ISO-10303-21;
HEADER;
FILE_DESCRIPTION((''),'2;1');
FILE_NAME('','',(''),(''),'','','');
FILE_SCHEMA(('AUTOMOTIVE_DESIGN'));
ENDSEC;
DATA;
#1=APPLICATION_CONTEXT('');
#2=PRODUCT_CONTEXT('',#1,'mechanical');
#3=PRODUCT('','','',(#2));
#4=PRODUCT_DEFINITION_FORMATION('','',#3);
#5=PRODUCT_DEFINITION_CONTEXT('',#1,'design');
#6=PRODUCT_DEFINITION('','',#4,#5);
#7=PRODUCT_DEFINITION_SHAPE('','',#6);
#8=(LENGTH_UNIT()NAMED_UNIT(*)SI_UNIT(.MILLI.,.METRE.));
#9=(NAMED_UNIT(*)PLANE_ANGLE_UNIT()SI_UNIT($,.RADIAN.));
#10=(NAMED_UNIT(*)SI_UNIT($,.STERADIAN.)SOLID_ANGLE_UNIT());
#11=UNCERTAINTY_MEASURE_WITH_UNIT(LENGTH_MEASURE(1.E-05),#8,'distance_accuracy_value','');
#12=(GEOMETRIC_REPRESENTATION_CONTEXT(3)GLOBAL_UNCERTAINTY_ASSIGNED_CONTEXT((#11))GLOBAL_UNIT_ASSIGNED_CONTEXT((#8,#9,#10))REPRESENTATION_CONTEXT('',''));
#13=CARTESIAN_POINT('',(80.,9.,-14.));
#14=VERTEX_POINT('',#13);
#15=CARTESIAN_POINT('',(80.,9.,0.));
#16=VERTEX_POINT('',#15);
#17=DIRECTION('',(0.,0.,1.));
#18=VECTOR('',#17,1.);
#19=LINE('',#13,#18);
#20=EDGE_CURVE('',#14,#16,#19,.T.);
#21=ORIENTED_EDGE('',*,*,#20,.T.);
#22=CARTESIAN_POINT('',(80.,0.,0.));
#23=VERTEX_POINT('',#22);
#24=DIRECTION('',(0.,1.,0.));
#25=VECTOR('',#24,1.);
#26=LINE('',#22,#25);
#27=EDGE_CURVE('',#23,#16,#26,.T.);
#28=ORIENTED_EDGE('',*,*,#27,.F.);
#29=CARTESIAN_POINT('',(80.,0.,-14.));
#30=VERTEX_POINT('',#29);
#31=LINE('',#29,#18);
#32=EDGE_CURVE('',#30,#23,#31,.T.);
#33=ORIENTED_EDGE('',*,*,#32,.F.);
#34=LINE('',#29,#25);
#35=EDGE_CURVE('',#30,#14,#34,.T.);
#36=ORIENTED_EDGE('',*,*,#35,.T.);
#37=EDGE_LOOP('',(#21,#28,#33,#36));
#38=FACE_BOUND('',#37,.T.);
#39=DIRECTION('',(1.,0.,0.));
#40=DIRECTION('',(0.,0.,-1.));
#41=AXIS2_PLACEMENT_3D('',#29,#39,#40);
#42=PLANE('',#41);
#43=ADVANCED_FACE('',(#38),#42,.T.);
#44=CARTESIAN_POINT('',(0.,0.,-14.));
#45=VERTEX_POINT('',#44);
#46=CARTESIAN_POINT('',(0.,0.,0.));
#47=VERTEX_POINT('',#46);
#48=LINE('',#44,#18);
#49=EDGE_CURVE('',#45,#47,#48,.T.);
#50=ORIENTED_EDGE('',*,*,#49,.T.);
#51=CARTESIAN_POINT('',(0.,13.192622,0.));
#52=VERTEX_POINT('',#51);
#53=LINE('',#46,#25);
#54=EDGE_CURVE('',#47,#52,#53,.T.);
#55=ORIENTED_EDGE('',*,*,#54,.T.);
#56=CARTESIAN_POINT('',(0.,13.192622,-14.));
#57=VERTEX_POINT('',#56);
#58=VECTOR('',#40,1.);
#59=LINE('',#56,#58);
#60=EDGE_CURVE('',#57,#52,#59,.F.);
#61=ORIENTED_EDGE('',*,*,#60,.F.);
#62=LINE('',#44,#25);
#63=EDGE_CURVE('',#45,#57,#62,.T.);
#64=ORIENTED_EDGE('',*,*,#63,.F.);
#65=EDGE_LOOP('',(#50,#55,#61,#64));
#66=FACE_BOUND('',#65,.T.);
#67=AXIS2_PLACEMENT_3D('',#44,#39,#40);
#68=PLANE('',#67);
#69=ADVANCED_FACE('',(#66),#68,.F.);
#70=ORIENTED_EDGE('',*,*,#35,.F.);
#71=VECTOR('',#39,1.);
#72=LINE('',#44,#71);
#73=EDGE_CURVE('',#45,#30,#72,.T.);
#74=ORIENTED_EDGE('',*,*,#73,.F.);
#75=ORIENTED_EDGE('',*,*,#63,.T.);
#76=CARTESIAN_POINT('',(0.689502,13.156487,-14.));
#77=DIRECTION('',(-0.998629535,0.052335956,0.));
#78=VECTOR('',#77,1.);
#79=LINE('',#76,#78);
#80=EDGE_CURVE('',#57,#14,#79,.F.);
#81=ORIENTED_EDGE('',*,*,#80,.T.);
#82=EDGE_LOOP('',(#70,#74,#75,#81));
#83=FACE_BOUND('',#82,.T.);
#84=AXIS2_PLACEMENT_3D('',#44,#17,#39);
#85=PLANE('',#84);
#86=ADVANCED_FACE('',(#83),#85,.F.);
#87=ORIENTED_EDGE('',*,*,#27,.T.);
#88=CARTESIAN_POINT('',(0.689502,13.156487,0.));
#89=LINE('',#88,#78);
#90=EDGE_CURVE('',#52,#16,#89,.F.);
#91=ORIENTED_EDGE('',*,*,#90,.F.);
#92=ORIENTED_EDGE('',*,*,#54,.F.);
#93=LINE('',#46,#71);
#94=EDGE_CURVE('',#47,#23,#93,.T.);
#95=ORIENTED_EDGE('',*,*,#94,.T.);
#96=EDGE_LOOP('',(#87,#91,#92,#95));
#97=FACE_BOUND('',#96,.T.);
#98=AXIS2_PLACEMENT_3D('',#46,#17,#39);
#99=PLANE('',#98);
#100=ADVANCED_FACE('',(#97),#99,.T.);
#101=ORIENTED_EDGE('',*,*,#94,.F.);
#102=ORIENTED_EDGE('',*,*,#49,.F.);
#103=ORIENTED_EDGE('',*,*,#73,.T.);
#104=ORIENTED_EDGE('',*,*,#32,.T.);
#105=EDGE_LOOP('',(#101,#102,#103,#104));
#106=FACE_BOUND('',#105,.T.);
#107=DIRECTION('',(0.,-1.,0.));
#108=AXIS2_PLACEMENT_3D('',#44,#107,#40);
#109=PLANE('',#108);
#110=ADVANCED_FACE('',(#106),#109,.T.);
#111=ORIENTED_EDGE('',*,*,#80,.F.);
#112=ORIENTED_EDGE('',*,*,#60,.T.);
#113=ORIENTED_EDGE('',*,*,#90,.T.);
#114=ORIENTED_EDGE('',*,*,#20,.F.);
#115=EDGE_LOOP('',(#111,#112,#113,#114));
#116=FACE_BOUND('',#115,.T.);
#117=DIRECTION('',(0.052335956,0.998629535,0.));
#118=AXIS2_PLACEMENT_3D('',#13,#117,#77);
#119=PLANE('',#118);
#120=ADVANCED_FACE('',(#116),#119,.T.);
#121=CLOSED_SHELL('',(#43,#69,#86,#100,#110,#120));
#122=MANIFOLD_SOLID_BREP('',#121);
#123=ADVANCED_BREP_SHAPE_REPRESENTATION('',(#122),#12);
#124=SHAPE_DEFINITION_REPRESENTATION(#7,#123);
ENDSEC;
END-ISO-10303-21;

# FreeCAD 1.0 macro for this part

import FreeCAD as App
import Part
import Sketcher

V = App.Vector
Q = App.Units.Quantity


def faces_at(feature, points):
    """Names of the faces that lie closest to the given points."""
    faces = feature.Shape.Faces
    near = lambda p: min(range(len(faces)), key=lambda i: faces[i].distToShape(Part.Vertex(*p))[0])
    return sorted({f"Face{near(p) + 1}" for p in points})


def add_polygon(sketch, points):
    """Adds a closed chain of lines whose ends are joined by coincident constraints."""
    first, n = sketch.GeometryCount, len(points)
    for a, b in zip(points, points[1:] + points[:1]):
        sketch.addGeometry(Part.LineSegment(App.Vector(*a, 0), App.Vector(*b, 0)), False)
    for i in range(n):
        sketch.addConstraint(Sketcher.Constraint("Coincident", first + i, 2, first + (i + 1) % n, 1))

doc = App.newDocument("Part")
body = doc.addObject("PartDesign::Body", "Body")

# Sketch on XY plane
sketch1 = doc.addObject("Sketcher::SketchObject", "Sketch")
body.addObject(sketch1)
sketch1.AttachmentSupport = (doc.XY_Plane, [""])
sketch1.MapMode = "FlatFace"
add_polygon(sketch1, [(0, 9), (0, 0), (80, 0), (80, 9)])  # lines 0-3
sketch1.addConstraint([
    Sketcher.Constraint("Vertical", 0),
    Sketcher.Constraint("Horizontal", 1),
    Sketcher.Constraint("Vertical", 2),
    Sketcher.Constraint("Horizontal", 3),
    Sketcher.Constraint("Coincident", 0, 2, -1, 1),
    Sketcher.Constraint("DistanceX", 1, 1, 1, 2, Q("80 mm")),
    Sketcher.Constraint("DistanceY", 0, 2, 0, 1, Q("9 mm")),
])
pad1 = doc.addObject("PartDesign::Pad", "Pad")
body.addObject(pad1)
pad1.Profile = sketch1
pad1.Length = 14
pad1.Reversed = True
doc.recompute()

datumplane = doc.addObject("PartDesign::Plane", "DatumPlane")
body.addObject(datumplane)
datumplane.AttachmentSupport = (doc.YZ_Plane, [""])
datumplane.MapMode = "FlatFace"
datumplane.AttachmentOffset = App.Placement(V(0, 0, 80), App.Rotation())
draft = doc.addObject("PartDesign::Draft", "Draft")
body.addObject(draft)
draft.Base = (pad1, faces_at(pad1, [(40, 9, -7)]))
draft.NeutralPlane = (datumplane, [""])
draft.Angle = 3
draft.Reversed = False

doc.recompute()
